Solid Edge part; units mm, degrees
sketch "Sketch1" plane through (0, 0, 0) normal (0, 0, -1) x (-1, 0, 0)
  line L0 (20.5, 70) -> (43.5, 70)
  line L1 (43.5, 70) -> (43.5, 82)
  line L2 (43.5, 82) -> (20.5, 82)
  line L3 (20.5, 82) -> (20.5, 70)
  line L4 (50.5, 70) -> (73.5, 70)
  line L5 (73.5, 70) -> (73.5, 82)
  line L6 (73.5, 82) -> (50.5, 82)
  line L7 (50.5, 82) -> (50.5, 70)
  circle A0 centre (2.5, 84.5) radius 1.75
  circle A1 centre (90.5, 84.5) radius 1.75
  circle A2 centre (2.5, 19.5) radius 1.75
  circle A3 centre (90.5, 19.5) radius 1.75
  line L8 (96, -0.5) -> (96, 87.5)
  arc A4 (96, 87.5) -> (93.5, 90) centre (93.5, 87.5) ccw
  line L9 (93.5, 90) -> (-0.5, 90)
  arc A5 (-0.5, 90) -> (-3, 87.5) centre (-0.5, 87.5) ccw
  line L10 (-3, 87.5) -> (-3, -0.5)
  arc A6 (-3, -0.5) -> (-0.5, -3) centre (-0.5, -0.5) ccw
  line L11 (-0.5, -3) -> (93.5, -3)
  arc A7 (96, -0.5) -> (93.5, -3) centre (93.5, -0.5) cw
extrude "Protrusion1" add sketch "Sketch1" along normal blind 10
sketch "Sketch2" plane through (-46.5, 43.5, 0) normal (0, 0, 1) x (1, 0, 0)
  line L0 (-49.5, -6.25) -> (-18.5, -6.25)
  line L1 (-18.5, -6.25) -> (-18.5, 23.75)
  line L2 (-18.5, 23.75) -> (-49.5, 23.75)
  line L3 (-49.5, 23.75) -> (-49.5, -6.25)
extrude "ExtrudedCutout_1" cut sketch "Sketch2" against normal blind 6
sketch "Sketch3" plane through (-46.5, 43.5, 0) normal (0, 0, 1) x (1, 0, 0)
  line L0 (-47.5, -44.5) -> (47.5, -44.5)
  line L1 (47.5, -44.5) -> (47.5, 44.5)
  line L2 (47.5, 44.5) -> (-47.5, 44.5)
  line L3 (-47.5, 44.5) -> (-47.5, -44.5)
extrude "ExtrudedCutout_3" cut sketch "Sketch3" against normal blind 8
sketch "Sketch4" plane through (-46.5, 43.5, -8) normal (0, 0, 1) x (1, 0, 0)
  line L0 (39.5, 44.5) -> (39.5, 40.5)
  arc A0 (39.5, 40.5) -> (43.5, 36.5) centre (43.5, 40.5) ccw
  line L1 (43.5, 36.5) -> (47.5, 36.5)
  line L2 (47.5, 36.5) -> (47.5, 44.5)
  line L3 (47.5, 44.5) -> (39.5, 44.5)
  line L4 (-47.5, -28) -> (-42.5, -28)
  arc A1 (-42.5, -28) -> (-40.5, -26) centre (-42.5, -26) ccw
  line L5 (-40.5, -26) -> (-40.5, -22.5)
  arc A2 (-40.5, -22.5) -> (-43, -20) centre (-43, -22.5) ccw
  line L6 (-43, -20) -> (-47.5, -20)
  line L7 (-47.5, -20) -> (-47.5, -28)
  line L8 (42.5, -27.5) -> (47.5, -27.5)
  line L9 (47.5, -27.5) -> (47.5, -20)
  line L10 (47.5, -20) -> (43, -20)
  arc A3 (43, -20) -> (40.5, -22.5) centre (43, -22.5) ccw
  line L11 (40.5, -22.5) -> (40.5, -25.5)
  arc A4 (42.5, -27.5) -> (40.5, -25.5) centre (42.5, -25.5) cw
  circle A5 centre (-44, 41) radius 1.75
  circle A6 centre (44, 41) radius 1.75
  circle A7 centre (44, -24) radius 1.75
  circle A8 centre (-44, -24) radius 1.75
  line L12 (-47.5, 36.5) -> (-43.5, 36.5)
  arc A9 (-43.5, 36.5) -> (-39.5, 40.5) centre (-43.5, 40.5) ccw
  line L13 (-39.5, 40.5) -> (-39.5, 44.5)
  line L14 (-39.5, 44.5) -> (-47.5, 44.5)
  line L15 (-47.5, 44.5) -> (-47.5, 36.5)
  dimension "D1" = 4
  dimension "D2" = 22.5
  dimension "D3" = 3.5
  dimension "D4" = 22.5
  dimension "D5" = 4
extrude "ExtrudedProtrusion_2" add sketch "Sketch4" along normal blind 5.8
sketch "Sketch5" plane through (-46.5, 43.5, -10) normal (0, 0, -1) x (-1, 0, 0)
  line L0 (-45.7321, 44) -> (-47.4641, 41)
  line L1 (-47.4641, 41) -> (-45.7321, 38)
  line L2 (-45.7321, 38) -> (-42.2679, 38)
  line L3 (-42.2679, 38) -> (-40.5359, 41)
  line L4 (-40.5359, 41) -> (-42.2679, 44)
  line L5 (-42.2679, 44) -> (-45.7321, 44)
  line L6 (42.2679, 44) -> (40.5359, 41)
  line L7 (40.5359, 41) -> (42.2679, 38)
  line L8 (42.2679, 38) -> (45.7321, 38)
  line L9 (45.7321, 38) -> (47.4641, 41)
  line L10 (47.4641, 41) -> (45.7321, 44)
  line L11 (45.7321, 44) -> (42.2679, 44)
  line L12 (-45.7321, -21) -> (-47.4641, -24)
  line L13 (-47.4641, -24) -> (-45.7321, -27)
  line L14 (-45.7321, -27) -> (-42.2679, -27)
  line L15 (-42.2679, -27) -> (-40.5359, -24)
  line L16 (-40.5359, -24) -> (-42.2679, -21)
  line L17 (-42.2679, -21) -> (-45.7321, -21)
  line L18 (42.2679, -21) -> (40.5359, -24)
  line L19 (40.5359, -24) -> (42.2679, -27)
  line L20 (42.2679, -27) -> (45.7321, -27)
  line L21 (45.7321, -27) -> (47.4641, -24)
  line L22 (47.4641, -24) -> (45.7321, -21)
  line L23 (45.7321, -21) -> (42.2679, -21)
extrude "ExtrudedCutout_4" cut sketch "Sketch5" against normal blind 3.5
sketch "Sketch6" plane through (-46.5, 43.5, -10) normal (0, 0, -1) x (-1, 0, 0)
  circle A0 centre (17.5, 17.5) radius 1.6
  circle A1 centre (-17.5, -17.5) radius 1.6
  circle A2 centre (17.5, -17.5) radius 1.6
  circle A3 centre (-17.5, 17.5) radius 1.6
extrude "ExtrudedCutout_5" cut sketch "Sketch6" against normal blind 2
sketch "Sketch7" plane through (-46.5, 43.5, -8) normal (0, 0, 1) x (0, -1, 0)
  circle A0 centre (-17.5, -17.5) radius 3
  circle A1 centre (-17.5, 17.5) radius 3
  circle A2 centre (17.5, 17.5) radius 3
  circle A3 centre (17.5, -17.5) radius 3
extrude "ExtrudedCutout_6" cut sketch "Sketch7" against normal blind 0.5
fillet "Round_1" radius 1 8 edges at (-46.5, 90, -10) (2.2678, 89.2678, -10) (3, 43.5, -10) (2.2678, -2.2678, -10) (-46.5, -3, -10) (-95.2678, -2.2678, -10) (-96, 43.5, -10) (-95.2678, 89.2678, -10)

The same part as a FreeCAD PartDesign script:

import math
import FreeCAD as App
import Part
import Sketcher
Q = App.Units.Quantity


def edges_at(feature, points):
    """Names of the edges that pass closest to the given points."""
    edges = feature.Shape.Edges
    near = lambda p: min(range(len(edges)), key=lambda i: edges[i].distToShape(Part.Vertex(*p))[0])
    return sorted({f"Edge{near(p) + 1}" for p in points})


def add_polygon(sketch, points):
    """Adds a closed chain of lines whose ends are joined by coincident constraints."""
    first, n = sketch.GeometryCount, len(points)
    for a, b in zip(points, points[1:] + points[:1]):
        sketch.addGeometry(Part.LineSegment(App.Vector(*a, 0), App.Vector(*b, 0)), False)
    for i in range(n):
        sketch.addConstraint(Sketcher.Constraint("Coincident", first + i, 2, first + (i + 1) % n, 1))

doc = App.newDocument("Part")
body = doc.addObject("PartDesign::Body", "Body")

# Sketch on XY plane
sketch1 = body.newObject("Sketcher::SketchObject", "Sketch")
sketch1.AttachmentSupport = (doc.getObject("XY_Plane"), [""])
sketch1.MapMode = "FlatFace"
sketch1.addGeometry(Part.ArcOfCircle(Part.Circle(App.Vector(-93.5, -0.5, 0), App.Vector(0, 0, 1), 2.5), math.radians(180), math.radians(270)), False)  # 0
sketch1.addGeometry(Part.LineSegment(App.Vector(-96, -0.5, 0), App.Vector(-96, 87.5, 0)), False)  # 1
sketch1.addGeometry(Part.ArcOfCircle(Part.Circle(App.Vector(-93.5, 87.5, 0), App.Vector(0, 0, 1), 2.5), math.radians(90), math.radians(180)), False)  # 2
sketch1.addGeometry(Part.LineSegment(App.Vector(-93.5, 90, 0), App.Vector(0.5, 90, 0)), False)  # 3
sketch1.addGeometry(Part.ArcOfCircle(Part.Circle(App.Vector(0.5, 87.5, 0), App.Vector(0, 0, 1), 2.5), math.radians(0), math.radians(90)), False)  # 4
sketch1.addGeometry(Part.LineSegment(App.Vector(3, 87.5, 0), App.Vector(3, -0.5, 0)), False)  # 5
sketch1.addGeometry(Part.ArcOfCircle(Part.Circle(App.Vector(0.5, -0.5, 0), App.Vector(0, 0, 1), 2.5), math.radians(-90), math.radians(0)), False)  # 6
sketch1.addGeometry(Part.LineSegment(App.Vector(0.5, -3, 0), App.Vector(-93.5, -3, 0)), False)  # 7
sketch1.addGeometry(Part.Circle(App.Vector(-2.5, 19.5, 0), App.Vector(0, 0, 1), 1.8), False)  # 8
sketch1.addGeometry(Part.Circle(App.Vector(-90.5, 19.5, 0), App.Vector(0, 0, 1), 1.8), False)  # 9
sketch1.addGeometry(Part.Circle(App.Vector(-2.5, 84.5, 0), App.Vector(0, 0, 1), 1.8), False)  # 10
add_polygon(sketch1, [(-43.5, 70), (-20.5, 70), (-20.5, 82), (-43.5, 82)])  # lines 11-14
add_polygon(sketch1, [(-73.5, 70), (-50.5, 70), (-50.5, 82), (-73.5, 82)])  # lines 15-18
sketch1.addGeometry(Part.Circle(App.Vector(-90.5, 84.5, 0), App.Vector(0, 0, 1), 1.8), False)  # 19
sketch1.addConstraint(Sketcher.Constraint("Tangent", 0, 1, 1, 1))
sketch1.addConstraint(Sketcher.Constraint("Tangent", 1, 2, 2, 2))
sketch1.addConstraint(Sketcher.Constraint("Tangent", 2, 1, 3, 1))
sketch1.addConstraint(Sketcher.Constraint("Tangent", 3, 2, 4, 2))
sketch1.addConstraint(Sketcher.Constraint("Tangent", 4, 1, 5, 1))
sketch1.addConstraint(Sketcher.Constraint("Tangent", 5, 2, 6, 2))
sketch1.addConstraint(Sketcher.Constraint("Tangent", 6, 1, 7, 1))
sketch1.addConstraint(Sketcher.Constraint("Tangent", 7, 2, 0, 2))
sketch1.addConstraint(Sketcher.Constraint("Vertical", 1))
sketch1.addConstraint(Sketcher.Constraint("Horizontal", 3))
sketch1.addConstraint(Sketcher.Constraint("Vertical", 5))
sketch1.addConstraint(Sketcher.Constraint("Horizontal", 7))
sketch1.addConstraint(Sketcher.Constraint("Horizontal", 11))
sketch1.addConstraint(Sketcher.Constraint("Vertical", 12))
sketch1.addConstraint(Sketcher.Constraint("Horizontal", 13))
sketch1.addConstraint(Sketcher.Constraint("Vertical", 14))
sketch1.addConstraint(Sketcher.Constraint("Horizontal", 15))
sketch1.addConstraint(Sketcher.Constraint("Vertical", 16))
sketch1.addConstraint(Sketcher.Constraint("Horizontal", 17))
sketch1.addConstraint(Sketcher.Constraint("Vertical", 18))
sketch1.addConstraint(Sketcher.Constraint("Equal", 0, 2))
sketch1.addConstraint(Sketcher.Constraint("Equal", 2, 4))
sketch1.addConstraint(Sketcher.Constraint("Equal", 4, 6))
sketch1.addConstraint(Sketcher.Constraint("Equal", 8, 9))
sketch1.addConstraint(Sketcher.Constraint("Equal", 9, 10))
sketch1.addConstraint(Sketcher.Constraint("Equal", 10, 19))
sketch1.addConstraint(Sketcher.Constraint("Horizontal", 8, 3, 9, 3))
sketch1.addConstraint(Sketcher.Constraint("Horizontal", 10, 3, 19, 3))
sketch1.addConstraint(Sketcher.Constraint("Horizontal", 14, 2, 15, 2))
sketch1.addConstraint(Sketcher.Constraint("Horizontal", 13, 2, 16, 2))
sketch1.addConstraint(Sketcher.Constraint("Vertical", 8, 3, 10, 3))
sketch1.addConstraint(Sketcher.Constraint("Vertical", 9, 3, 19, 3))
sketch1.addConstraint(Sketcher.Constraint("Equal", 13, 15))
sketch1.addConstraint(Sketcher.Constraint("Diameter", 8, Q("3.5 mm")))
sketch1.addConstraint(Sketcher.Constraint("Radius", 0, Q("2.5 mm")))
sketch1.addConstraint(Sketcher.Constraint("DistanceX", 3, 1, 3, 2, Q("94 mm")))
sketch1.addConstraint(Sketcher.Constraint("DistanceX", 11, 1, 11, 2, Q("23 mm")))
sketch1.addConstraint(Sketcher.Constraint("DistanceY", 1, 1, 1, 2, Q("88 mm")))
sketch1.addConstraint(Sketcher.Constraint("DistanceY", 12, 1, 12, 2, Q("12 mm")))
sketch1.addConstraint(Sketcher.Constraint("DistanceX", 0, 1, -1, 1, Q("96 mm")))
sketch1.addConstraint(Sketcher.Constraint("DistanceY", -1, 1, 2, 1, Q("90 mm")))
sketch1.addConstraint(Sketcher.Constraint("DistanceY", -1, 1, 11, 2, Q("70 mm")))
sketch1.addConstraint(Sketcher.Constraint("DistanceX", 8, 3, 6, 3, Q("3 mm")))
sketch1.addConstraint(Sketcher.Constraint("DistanceY", 6, 3, 8, 3, Q("20 mm")))
sketch1.addConstraint(Sketcher.Constraint("DistanceX", 0, 3, 9, 3, Q("3 mm")))
sketch1.addConstraint(Sketcher.Constraint("DistanceY", 10, 3, 4, 3, Q("3 mm")))
sketch1.addConstraint(Sketcher.Constraint("DistanceX", 11, 2, 10, 3, Q("18 mm")))
sketch1.addConstraint(Sketcher.Constraint("DistanceX", 15, 2, 14, 2, Q("7 mm")))
pad1 = body.newObject("PartDesign::Pad", "Pad")
pad1.Profile = sketch1
pad1.Length = 10
pad1.Reversed = True

# Sketch on XY plane
sketch2 = body.newObject("Sketcher::SketchObject", "Sketch001")
sketch2.AttachmentSupport = (doc.getObject("XY_Plane"), [""])
sketch2.MapMode = "FlatFace"
add_polygon(sketch2, [(-96, 67), (-96, 37), (-65, 37), (-65, 67)])  # lines 0-3
sketch2.addConstraint(Sketcher.Constraint("Vertical", 0))
sketch2.addConstraint(Sketcher.Constraint("Horizontal", 1))
sketch2.addConstraint(Sketcher.Constraint("Vertical", 2))
sketch2.addConstraint(Sketcher.Constraint("Horizontal", 3))
sketch2.addConstraint(Sketcher.Constraint("DistanceX", 1, 1, 1, 2, Q("31 mm")))
sketch2.addConstraint(Sketcher.Constraint("DistanceY", 0, 2, 0, 1, Q("30 mm")))
sketch2.addConstraint(Sketcher.Constraint("DistanceX", 0, 2, -1, 1, Q("96 mm")))
sketch2.addConstraint(Sketcher.Constraint("DistanceY", -1, 1, 0, 2, Q("37.25 mm")))
pocket1 = body.newObject("PartDesign::Pocket", "Pocket")
pocket1.Profile = sketch2
pocket1.Length = 6

# Sketch on XY plane
sketch3 = body.newObject("Sketcher::SketchObject", "Sketch002")
sketch3.AttachmentSupport = (doc.getObject("XY_Plane"), [""])
sketch3.MapMode = "FlatFace"
add_polygon(sketch3, [(-94, 88), (-94, -1), (1, -1), (1, 88)])  # lines 0-3
sketch3.addConstraint(Sketcher.Constraint("Vertical", 0))
sketch3.addConstraint(Sketcher.Constraint("Horizontal", 1))
sketch3.addConstraint(Sketcher.Constraint("Vertical", 2))
sketch3.addConstraint(Sketcher.Constraint("Horizontal", 3))
sketch3.addConstraint(Sketcher.Constraint("DistanceX", 1, 1, 1, 2, Q("95 mm")))
sketch3.addConstraint(Sketcher.Constraint("DistanceY", 0, 2, 0, 1, Q("89 mm")))
sketch3.addConstraint(Sketcher.Constraint("DistanceX", 0, 2, -1, 1, Q("94 mm")))
sketch3.addConstraint(Sketcher.Constraint("DistanceY", 0, 2, -1, 1, Q("1 mm")))
pocket2 = body.newObject("PartDesign::Pocket", "Pocket001")
pocket2.Profile = sketch3
pocket2.Length = 8

# Sketch on XY plane
sketch4 = body.newObject("Sketcher::SketchObject", "Sketch003")
sketch4.AttachmentSupport = (doc.getObject("XY_Plane"), [""])
sketch4.MapMode = "FlatFace"
sketch4.AttachmentOffset = App.Placement(App.Vector(0, 0, -8), App.Rotation())
sketch4.addGeometry(Part.LineSegment(App.Vector(1, 88, 0), App.Vector(-7, 88, 0)), False)
sketch4.addGeometry(Part.LineSegment(App.Vector(-7, 88, 0), App.Vector(-7, 84, 0)), False)
sketch4.addGeometry(Part.ArcOfCircle(Part.Circle(App.Vector(-3, 84, 0), App.Vector(0, 0, 1), 4), math.radians(180), math.radians(270)), False)
sketch4.addGeometry(Part.LineSegment(App.Vector(-3, 80, 0), App.Vector(1, 80, 0)), False)
sketch4.addGeometry(Part.LineSegment(App.Vector(1, 80, 0), App.Vector(1, 88, 0)), False)
sketch4.addGeometry(Part.Circle(App.Vector(-2.5, 84.5, 0), App.Vector(0, 0, 1), 1.8), False)
sketch4.addGeometry(Part.LineSegment(App.Vector(-94, 23.5, 0), App.Vector(-94, 15.5, 0)), False)
sketch4.addGeometry(Part.LineSegment(App.Vector(-94, 15.5, 0), App.Vector(-89, 15.5, 0)), False)
sketch4.addGeometry(Part.ArcOfCircle(Part.Circle(App.Vector(-89, 17.5, 0), App.Vector(0, 0, 1), 2), math.radians(-90), math.radians(0)), False)
sketch4.addGeometry(Part.LineSegment(App.Vector(-87, 17.5, 0), App.Vector(-87, 21, 0)), False)
sketch4.addGeometry(Part.ArcOfCircle(Part.Circle(App.Vector(-89.5, 21, 0), App.Vector(0, 0, 1), 2.5), math.radians(0), math.radians(90)), False)
sketch4.addGeometry(Part.LineSegment(App.Vector(-89.5, 23.5, 0), App.Vector(-94, 23.5, 0)), False)
sketch4.addGeometry(Part.Circle(App.Vector(-90.5, 19.5, 0), App.Vector(0, 0, 1), 1.8), False)
sketch4.addGeometry(Part.ArcOfCircle(Part.Circle(App.Vector(-4, 18, 0), App.Vector(0, 0, 1), 2), math.radians(180), math.radians(270)), False)
sketch4.addGeometry(Part.LineSegment(App.Vector(-4, 16, 0), App.Vector(1, 16, 0)), False)
sketch4.addGeometry(Part.LineSegment(App.Vector(1, 16, 0), App.Vector(1, 23.5, 0)), False)
sketch4.addGeometry(Part.LineSegment(App.Vector(1, 23.5, 0), App.Vector(-3.5, 23.5, 0)), False)
sketch4.addGeometry(Part.ArcOfCircle(Part.Circle(App.Vector(-3.5, 21, 0), App.Vector(0, 0, 1), 2.5), math.radians(90), math.radians(180)), False)
sketch4.addGeometry(Part.LineSegment(App.Vector(-6, 21, 0), App.Vector(-6, 18, 0)), False)
sketch4.addGeometry(Part.Circle(App.Vector(-2.5, 19.5, 0), App.Vector(0, 0, 1), 1.8), False)
sketch4.addGeometry(Part.LineSegment(App.Vector(-94, 88, 0), App.Vector(-94, 80, 0)), False)
sketch4.addGeometry(Part.LineSegment(App.Vector(-94, 80, 0), App.Vector(-90, 80, 0)), False)
sketch4.addGeometry(Part.ArcOfCircle(Part.Circle(App.Vector(-90, 84, 0), App.Vector(0, 0, 1), 4), math.radians(-90), math.radians(0)), False)
sketch4.addGeometry(Part.LineSegment(App.Vector(-86, 84, 0), App.Vector(-86, 88, 0)), False)
sketch4.addGeometry(Part.LineSegment(App.Vector(-86, 88, 0), App.Vector(-94, 88, 0)), False)
sketch4.addGeometry(Part.Circle(App.Vector(-90.5, 84.5, 0), App.Vector(0, 0, 1), 1.8), False)
sketch4.addConstraint(Sketcher.Constraint("Coincident", 0, 2, 1, 1))
sketch4.addConstraint(Sketcher.Constraint("Tangent", 1, 2, 2, 1))
sketch4.addConstraint(Sketcher.Constraint("Tangent", 2, 2, 3, 1))
sketch4.addConstraint(Sketcher.Constraint("Coincident", 3, 2, 4, 1))
sketch4.addConstraint(Sketcher.Constraint("Coincident", 4, 2, 0, 1))
sketch4.addConstraint(Sketcher.Constraint("Coincident", 6, 2, 7, 1))
sketch4.addConstraint(Sketcher.Constraint("Tangent", 7, 2, 8, 1))
sketch4.addConstraint(Sketcher.Constraint("Tangent", 8, 2, 9, 1))
sketch4.addConstraint(Sketcher.Constraint("Tangent", 9, 2, 10, 1))
sketch4.addConstraint(Sketcher.Constraint("Tangent", 10, 2, 11, 1))
sketch4.addConstraint(Sketcher.Constraint("Coincident", 11, 2, 6, 1))
sketch4.addConstraint(Sketcher.Constraint("Tangent", 13, 2, 14, 1))
sketch4.addConstraint(Sketcher.Constraint("Coincident", 14, 2, 15, 1))
sketch4.addConstraint(Sketcher.Constraint("Coincident", 15, 2, 16, 1))
sketch4.addConstraint(Sketcher.Constraint("Tangent", 16, 2, 17, 1))
sketch4.addConstraint(Sketcher.Constraint("Tangent", 17, 2, 18, 1))
sketch4.addConstraint(Sketcher.Constraint("Tangent", 18, 2, 13, 1))
sketch4.addConstraint(Sketcher.Constraint("Coincident", 20, 2, 21, 1))
sketch4.addConstraint(Sketcher.Constraint("Tangent", 21, 2, 22, 1))
sketch4.addConstraint(Sketcher.Constraint("Tangent", 22, 2, 23, 1))
sketch4.addConstraint(Sketcher.Constraint("Coincident", 23, 2, 24, 1))
sketch4.addConstraint(Sketcher.Constraint("Coincident", 24, 2, 20, 1))
sketch4.addConstraint(Sketcher.Constraint("Horizontal", 0))
sketch4.addConstraint(Sketcher.Constraint("Vertical", 1))
sketch4.addConstraint(Sketcher.Constraint("Horizontal", 3))
sketch4.addConstraint(Sketcher.Constraint("Vertical", 4))
sketch4.addConstraint(Sketcher.Constraint("Vertical", 6))
sketch4.addConstraint(Sketcher.Constraint("Horizontal", 7))
sketch4.addConstraint(Sketcher.Constraint("Vertical", 9))
sketch4.addConstraint(Sketcher.Constraint("Horizontal", 11))
sketch4.addConstraint(Sketcher.Constraint("Horizontal", 14))
sketch4.addConstraint(Sketcher.Constraint("Vertical", 15))
sketch4.addConstraint(Sketcher.Constraint("Horizontal", 16))
sketch4.addConstraint(Sketcher.Constraint("Vertical", 18))
sketch4.addConstraint(Sketcher.Constraint("Vertical", 20))
sketch4.addConstraint(Sketcher.Constraint("Horizontal", 21))
sketch4.addConstraint(Sketcher.Constraint("Vertical", 23))
sketch4.addConstraint(Sketcher.Constraint("Horizontal", 24))
sketch4.addConstraint(Sketcher.Constraint("Equal", 5, 12))
sketch4.addConstraint(Sketcher.Constraint("Equal", 8, 13))
sketch4.addConstraint(Sketcher.Constraint("Equal", 10, 17))
sketch4.addConstraint(Sketcher.Constraint("Equal", 12, 19))
sketch4.addConstraint(Sketcher.Constraint("Equal", 2, 22))
sketch4.addConstraint(Sketcher.Constraint("Equal", 19, 25))
sketch4.addConstraint(Sketcher.Constraint("Horizontal", 10, 3, 17, 3))
sketch4.addConstraint(Sketcher.Constraint("Horizontal", 12, 3, 19, 3))
sketch4.addConstraint(Sketcher.Constraint("Horizontal", 2, 3, 22, 3))
sketch4.addConstraint(Sketcher.Constraint("Horizontal", 5, 3, 25, 3))
sketch4.addConstraint(Sketcher.Constraint("Horizontal", 4, 2, 23, 2))
sketch4.addConstraint(Sketcher.Constraint("Vertical", 5, 3, 19, 3))
sketch4.addConstraint(Sketcher.Constraint("Vertical", 12, 3, 25, 3))
sketch4.addConstraint(Sketcher.Constraint("Vertical", 4, 2, 14, 2))
sketch4.addConstraint(Sketcher.Constraint("Vertical", 11, 2, 20, 2))
sketch4.addConstraint(Sketcher.Constraint("Equal", 7, 14))
sketch4.addConstraint(Sketcher.Constraint("Equal", 3, 21))
sketch4.addConstraint(Sketcher.Constraint("Equal", 21, 1))
sketch4.addConstraint(Sketcher.Constraint("Equal", 4, 6))
sketch4.addConstraint(Sketcher.Constraint("Radius", 2, Q("4 mm")))
sketch4.addConstraint(Sketcher.Constraint("Radius", 8, Q("2 mm")))
sketch4.addConstraint(Sketcher.Constraint("Diameter", 5, Q("3.5 mm")))
sketch4.addConstraint(Sketcher.Constraint("Radius", 10, Q("2.5 mm")))
sketch4.addConstraint(Sketcher.Constraint("DistanceX", 0, 2, 0, 1, Q("8 mm")))
sketch4.addConstraint(Sketcher.Constraint("DistanceX", 7, 1, 7, 2, Q("5 mm")))
sketch4.addConstraint(Sketcher.Constraint("DistanceY", 18, 2, 18, 1, Q("3 mm")))
sketch4.addConstraint(Sketcher.Constraint("DistanceX", 2, 3, -1, 1, Q("3 mm")))
sketch4.addConstraint(Sketcher.Constraint("DistanceY", -1, 1, 2, 3, Q("84 mm")))
sketch4.addConstraint(Sketcher.Constraint("DistanceX", 8, 3, -1, 1, Q("89 mm")))
sketch4.addConstraint(Sketcher.Constraint("DistanceY", -1, 1, 10, 3, Q("21 mm")))
sketch4.addConstraint(Sketcher.Constraint("DistanceY", 8, 3, 5, 3, Q("67 mm")))
sketch4.addConstraint(Sketcher.Constraint("DistanceX", 10, 3, 5, 3, Q("87 mm")))
sketch4.addConstraint(Sketcher.Constraint("DistanceX", 12, 3, 10, 3, Q("1 mm")))
sketch4.addConstraint(Sketcher.Constraint("DistanceY", 8, 3, 12, 3, Q("2 mm")))
pad2 = body.newObject("PartDesign::Pad", "Pad001")
pad2.Profile = sketch4
pad2.Length = 5.8

# Sketch on XY plane
sketch5 = body.newObject("Sketcher::SketchObject", "Sketch004")
sketch5.AttachmentSupport = (doc.getObject("XY_Plane"), [""])
sketch5.MapMode = "FlatFace"
sketch5.AttachmentOffset = App.Placement(App.Vector(0, 0, -10), App.Rotation())
add_polygon(sketch5, [(-4.2, 87.5), (-0.8, 87.5), (1, 84.5), (-0.8, 81.5), (-4.2, 81.5), (-6, 84.5)])  # lines 0-5
add_polygon(sketch5, [(-92.2, 87.5), (-88.8, 87.5), (-87, 84.5), (-88.8, 81.5), (-92.2, 81.5), (-94, 84.5)])  # lines 6-11
add_polygon(sketch5, [(-4.2, 22.5), (-0.8, 22.5), (1, 19.5), (-0.8, 16.5), (-4.2, 16.5), (-6, 19.5)])  # lines 12-17
add_polygon(sketch5, [(-92.2, 22.5), (-88.8, 22.5), (-87, 19.5), (-88.8, 16.5), (-92.2, 16.5), (-94, 19.5)])  # lines 18-23
sketch5.addConstraint(Sketcher.Constraint("Horizontal", 0))
sketch5.addConstraint(Sketcher.Constraint("Horizontal", 3))
sketch5.addConstraint(Sketcher.Constraint("Horizontal", 6))
sketch5.addConstraint(Sketcher.Constraint("Horizontal", 9))
sketch5.addConstraint(Sketcher.Constraint("Horizontal", 12))
sketch5.addConstraint(Sketcher.Constraint("Horizontal", 15))
sketch5.addConstraint(Sketcher.Constraint("Horizontal", 18))
sketch5.addConstraint(Sketcher.Constraint("Horizontal", 21))
sketch5.addConstraint(Sketcher.Constraint("Parallel", 1, 4))
sketch5.addConstraint(Sketcher.Constraint("Parallel", 2, 5))
sketch5.addConstraint(Sketcher.Constraint("Parallel", 4, 7))
sketch5.addConstraint(Sketcher.Constraint("Parallel", 5, 8))
sketch5.addConstraint(Sketcher.Constraint("Parallel", 7, 10))
sketch5.addConstraint(Sketcher.Constraint("Parallel", 8, 11))
sketch5.addConstraint(Sketcher.Constraint("Parallel", 10, 13))
sketch5.addConstraint(Sketcher.Constraint("Parallel", 11, 14))
sketch5.addConstraint(Sketcher.Constraint("Parallel", 13, 16))
sketch5.addConstraint(Sketcher.Constraint("Parallel", 14, 17))
sketch5.addConstraint(Sketcher.Constraint("Parallel", 16, 19))
sketch5.addConstraint(Sketcher.Constraint("Parallel", 17, 20))
sketch5.addConstraint(Sketcher.Constraint("Parallel", 19, 22))
sketch5.addConstraint(Sketcher.Constraint("Parallel", 20, 23))
sketch5.addConstraint(Sketcher.Constraint("Horizontal", 1, 2, 4, 2))
sketch5.addConstraint(Sketcher.Constraint("Horizontal", 5, 2, 6, 2))
sketch5.addConstraint(Sketcher.Constraint("Horizontal", 4, 2, 7, 2))
sketch5.addConstraint(Sketcher.Constraint("Horizontal", 3, 2, 8, 2))
sketch5.addConstraint(Sketcher.Constraint("Horizontal", 7, 2, 10, 2))
sketch5.addConstraint(Sketcher.Constraint("Horizontal", 13, 2, 16, 2))
sketch5.addConstraint(Sketcher.Constraint("Horizontal", 17, 2, 18, 2))
sketch5.addConstraint(Sketcher.Constraint("Horizontal", 16, 2, 19, 2))
sketch5.addConstraint(Sketcher.Constraint("Horizontal", 15, 2, 20, 2))
sketch5.addConstraint(Sketcher.Constraint("Horizontal", 19, 2, 22, 2))
sketch5.addConstraint(Sketcher.Constraint("Vertical", 0, 2, 2, 2))
sketch5.addConstraint(Sketcher.Constraint("Vertical", 3, 2, 5, 2))
sketch5.addConstraint(Sketcher.Constraint("Vertical", 2, 2, 12, 2))
sketch5.addConstraint(Sketcher.Constraint("Vertical", 1, 2, 13, 2))
sketch5.addConstraint(Sketcher.Constraint("Vertical", 12, 2, 14, 2))
sketch5.addConstraint(Sketcher.Constraint("Vertical", 5, 2, 15, 2))
sketch5.addConstraint(Sketcher.Constraint("Vertical", 8, 2, 18, 2))
sketch5.addConstraint(Sketcher.Constraint("Vertical", 11, 2, 21, 2))
sketch5.addConstraint(Sketcher.Constraint("Equal", 3, 6))
sketch5.addConstraint(Sketcher.Constraint("Angle", 1, Q("-60.0007 deg")))
sketch5.addConstraint(Sketcher.Constraint("DistanceY", 1, 2, 0, 2, Q("3 mm")))
sketch5.addConstraint(Sketcher.Constraint("DistanceX", 6, 2, 0, 2, Q("88 mm")))
sketch5.addConstraint(Sketcher.Constraint("DistanceY", 12, 2, 2, 2, Q("59 mm")))
sketch5.addConstraint(Sketcher.Constraint("DistanceY", -1, 1, 0, 2, Q("87.5 mm")))
sketch5.addConstraint(Sketcher.Constraint("DistanceX", 0, 1, 0, 2, Q("3.4642 mm")))
sketch5.addConstraint(Sketcher.Constraint("DistanceX", 0, 2, -1, 1, Q("0.768 mm")))
pocket3 = body.newObject("PartDesign::Pocket", "Pocket002")
pocket3.Profile = sketch5
pocket3.Length = 3.5
pocket3.Reversed = True

# Sketch on XY plane
sketch6 = body.newObject("Sketcher::SketchObject", "Sketch005")
sketch6.AttachmentSupport = (doc.getObject("XY_Plane"), [""])
sketch6.MapMode = "FlatFace"
sketch6.AttachmentOffset = App.Placement(App.Vector(0, 0, -10), App.Rotation())
sketch6.addGeometry(Part.Circle(App.Vector(-64, 61, 0), App.Vector(0, 0, 1), 1.6), False)
sketch6.addGeometry(Part.Circle(App.Vector(-29, 26, 0), App.Vector(0, 0, 1), 1.6), False)
sketch6.addGeometry(Part.Circle(App.Vector(-64, 26, 0), App.Vector(0, 0, 1), 1.6), False)
sketch6.addGeometry(Part.Circle(App.Vector(-29, 61, 0), App.Vector(0, 0, 1), 1.6), False)
sketch6.addConstraint(Sketcher.Constraint("Equal", 0, 1))
sketch6.addConstraint(Sketcher.Constraint("Equal", 1, 2))
sketch6.addConstraint(Sketcher.Constraint("Equal", 2, 3))
sketch6.addConstraint(Sketcher.Constraint("Horizontal", 1, 3, 2, 3))
sketch6.addConstraint(Sketcher.Constraint("Horizontal", 0, 3, 3, 3))
sketch6.addConstraint(Sketcher.Constraint("Vertical", 0, 3, 2, 3))
sketch6.addConstraint(Sketcher.Constraint("Vertical", 1, 3, 3, 3))
sketch6.addConstraint(Sketcher.Constraint("Diameter", 0, Q("3.2 mm")))
sketch6.addConstraint(Sketcher.Constraint("DistanceX", 0, 3, -1, 1, Q("64 mm")))
sketch6.addConstraint(Sketcher.Constraint("DistanceY", -1, 1, 0, 3, Q("61 mm")))
sketch6.addConstraint(Sketcher.Constraint("DistanceX", 1, 3, -1, 1, Q("29 mm")))
sketch6.addConstraint(Sketcher.Constraint("DistanceY", -1, 1, 1, 3, Q("26 mm")))
pocket4 = body.newObject("PartDesign::Pocket", "Pocket003")
pocket4.Profile = sketch6
pocket4.Length = 2
pocket4.Reversed = True

# Sketch on XY plane
sketch7 = body.newObject("Sketcher::SketchObject", "Sketch006")
sketch7.AttachmentSupport = (doc.getObject("XY_Plane"), [""])
sketch7.MapMode = "FlatFace"
sketch7.AttachmentOffset = App.Placement(App.Vector(0, 0, -8), App.Rotation())
sketch7.addGeometry(Part.Circle(App.Vector(-64, 61, 0), App.Vector(0, 0, 1), 3), False)
sketch7.addGeometry(Part.Circle(App.Vector(-29, 61, 0), App.Vector(0, 0, 1), 3), False)
sketch7.addGeometry(Part.Circle(App.Vector(-29, 26, 0), App.Vector(0, 0, 1), 3), False)
sketch7.addGeometry(Part.Circle(App.Vector(-64, 26, 0), App.Vector(0, 0, 1), 3), False)
sketch7.addConstraint(Sketcher.Constraint("Equal", 0, 1))
sketch7.addConstraint(Sketcher.Constraint("Equal", 1, 2))
sketch7.addConstraint(Sketcher.Constraint("Equal", 2, 3))
sketch7.addConstraint(Sketcher.Constraint("Horizontal", 0, 3, 1, 3))
sketch7.addConstraint(Sketcher.Constraint("Horizontal", 2, 3, 3, 3))
sketch7.addConstraint(Sketcher.Constraint("Vertical", 1, 3, 2, 3))
sketch7.addConstraint(Sketcher.Constraint("Vertical", 0, 3, 3, 3))
sketch7.addConstraint(Sketcher.Constraint("Diameter", 0, Q("6 mm")))
sketch7.addConstraint(Sketcher.Constraint("DistanceX", 0, 3, -1, 1, Q("64 mm")))
sketch7.addConstraint(Sketcher.Constraint("DistanceY", -1, 1, 0, 3, Q("61 mm")))
sketch7.addConstraint(Sketcher.Constraint("DistanceX", 1, 3, -1, 1, Q("29 mm")))
sketch7.addConstraint(Sketcher.Constraint("DistanceY", -1, 1, 2, 3, Q("26 mm")))
pocket5 = body.newObject("PartDesign::Pocket", "Pocket004")
pocket5.Profile = sketch7
pocket5.Length = 0.5
doc.recompute()

fillet = body.newObject("PartDesign::Fillet", "Fillet")
fillet.Base = (pocket5, edges_at(pocket5, [
    (-46.5, 90, -10),
    (2.268, 89.268, -10),
    (3, 43.5, -10),
    (2.268, -2.268, -10),
    (-46.5, -3, -10),
    (-95.268, -2.268, -10),
    (-96, 43.5, -10),
    (-95.268, 89.268, -10),
]))
fillet.Radius = 1

doc.recompute()
